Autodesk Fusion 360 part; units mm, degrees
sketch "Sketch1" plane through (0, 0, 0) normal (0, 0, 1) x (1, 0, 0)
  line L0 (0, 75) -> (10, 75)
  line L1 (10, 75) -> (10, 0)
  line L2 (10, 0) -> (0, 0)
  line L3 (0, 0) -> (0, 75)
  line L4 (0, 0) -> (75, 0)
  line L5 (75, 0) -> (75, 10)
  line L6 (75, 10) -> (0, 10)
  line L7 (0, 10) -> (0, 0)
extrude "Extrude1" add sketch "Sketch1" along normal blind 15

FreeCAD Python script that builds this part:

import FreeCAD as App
import Part
import Sketcher

V = App.Vector

doc = App.newDocument("Part")
body = doc.addObject("PartDesign::Body", "Body")

sketch1 = body.newObject("Sketcher::SketchObject", "Sketch")
sketch1.AttachmentSupport = (doc.getObject("XY_Plane"), [""])
sketch1.MapMode = "FlatFace"
sketch1.addGeometry([
    Part.LineSegment(V(10, 75, 0), V(0, 75, 0)),
    Part.LineSegment(V(0, 75, 0), V(0, 0, 0)),
    Part.LineSegment(V(0, 0, 0), V(75, 0, 0)),
    Part.LineSegment(V(75, 0, 0), V(75, 10, 0)),
    Part.LineSegment(V(75, 10, 0), V(10, 10, 0)),
    Part.LineSegment(V(10, 10, 0), V(10, 75, 0)),
], False)
sketch1.addConstraint([
    Sketcher.Constraint("Coincident", 0, 2, 1, 1),
    Sketcher.Constraint("Coincident", 1, 2, 2, 1),
    Sketcher.Constraint("Coincident", 2, 2, 3, 1),
    Sketcher.Constraint("Coincident", 3, 2, 4, 1),
    Sketcher.Constraint("Coincident", 4, 2, 5, 1),
    Sketcher.Constraint("Coincident", 5, 2, 0, 1),
    Sketcher.Constraint("Horizontal", 0),
    Sketcher.Constraint("Vertical", 1),
    Sketcher.Constraint("Horizontal", 2),
    Sketcher.Constraint("Vertical", 3),
    Sketcher.Constraint("Horizontal", 4),
    Sketcher.Constraint("Vertical", 5),
    Sketcher.Constraint("Coincident", 1, 2, -1, 1),
    Sketcher.Constraint("Equal", 2, 1),
    Sketcher.Constraint("Equal", 0, 3),
    Sketcher.Constraint("DistanceX", 0, 2, 0, 1, 10.0),
    Sketcher.Constraint("DistanceX", 2, 1, 2, 2, 75.0),
])
pad1 = body.newObject("PartDesign::Pad", "Pad")
pad1.Profile = sketch1
pad1.Length = 15

doc.recompute()
